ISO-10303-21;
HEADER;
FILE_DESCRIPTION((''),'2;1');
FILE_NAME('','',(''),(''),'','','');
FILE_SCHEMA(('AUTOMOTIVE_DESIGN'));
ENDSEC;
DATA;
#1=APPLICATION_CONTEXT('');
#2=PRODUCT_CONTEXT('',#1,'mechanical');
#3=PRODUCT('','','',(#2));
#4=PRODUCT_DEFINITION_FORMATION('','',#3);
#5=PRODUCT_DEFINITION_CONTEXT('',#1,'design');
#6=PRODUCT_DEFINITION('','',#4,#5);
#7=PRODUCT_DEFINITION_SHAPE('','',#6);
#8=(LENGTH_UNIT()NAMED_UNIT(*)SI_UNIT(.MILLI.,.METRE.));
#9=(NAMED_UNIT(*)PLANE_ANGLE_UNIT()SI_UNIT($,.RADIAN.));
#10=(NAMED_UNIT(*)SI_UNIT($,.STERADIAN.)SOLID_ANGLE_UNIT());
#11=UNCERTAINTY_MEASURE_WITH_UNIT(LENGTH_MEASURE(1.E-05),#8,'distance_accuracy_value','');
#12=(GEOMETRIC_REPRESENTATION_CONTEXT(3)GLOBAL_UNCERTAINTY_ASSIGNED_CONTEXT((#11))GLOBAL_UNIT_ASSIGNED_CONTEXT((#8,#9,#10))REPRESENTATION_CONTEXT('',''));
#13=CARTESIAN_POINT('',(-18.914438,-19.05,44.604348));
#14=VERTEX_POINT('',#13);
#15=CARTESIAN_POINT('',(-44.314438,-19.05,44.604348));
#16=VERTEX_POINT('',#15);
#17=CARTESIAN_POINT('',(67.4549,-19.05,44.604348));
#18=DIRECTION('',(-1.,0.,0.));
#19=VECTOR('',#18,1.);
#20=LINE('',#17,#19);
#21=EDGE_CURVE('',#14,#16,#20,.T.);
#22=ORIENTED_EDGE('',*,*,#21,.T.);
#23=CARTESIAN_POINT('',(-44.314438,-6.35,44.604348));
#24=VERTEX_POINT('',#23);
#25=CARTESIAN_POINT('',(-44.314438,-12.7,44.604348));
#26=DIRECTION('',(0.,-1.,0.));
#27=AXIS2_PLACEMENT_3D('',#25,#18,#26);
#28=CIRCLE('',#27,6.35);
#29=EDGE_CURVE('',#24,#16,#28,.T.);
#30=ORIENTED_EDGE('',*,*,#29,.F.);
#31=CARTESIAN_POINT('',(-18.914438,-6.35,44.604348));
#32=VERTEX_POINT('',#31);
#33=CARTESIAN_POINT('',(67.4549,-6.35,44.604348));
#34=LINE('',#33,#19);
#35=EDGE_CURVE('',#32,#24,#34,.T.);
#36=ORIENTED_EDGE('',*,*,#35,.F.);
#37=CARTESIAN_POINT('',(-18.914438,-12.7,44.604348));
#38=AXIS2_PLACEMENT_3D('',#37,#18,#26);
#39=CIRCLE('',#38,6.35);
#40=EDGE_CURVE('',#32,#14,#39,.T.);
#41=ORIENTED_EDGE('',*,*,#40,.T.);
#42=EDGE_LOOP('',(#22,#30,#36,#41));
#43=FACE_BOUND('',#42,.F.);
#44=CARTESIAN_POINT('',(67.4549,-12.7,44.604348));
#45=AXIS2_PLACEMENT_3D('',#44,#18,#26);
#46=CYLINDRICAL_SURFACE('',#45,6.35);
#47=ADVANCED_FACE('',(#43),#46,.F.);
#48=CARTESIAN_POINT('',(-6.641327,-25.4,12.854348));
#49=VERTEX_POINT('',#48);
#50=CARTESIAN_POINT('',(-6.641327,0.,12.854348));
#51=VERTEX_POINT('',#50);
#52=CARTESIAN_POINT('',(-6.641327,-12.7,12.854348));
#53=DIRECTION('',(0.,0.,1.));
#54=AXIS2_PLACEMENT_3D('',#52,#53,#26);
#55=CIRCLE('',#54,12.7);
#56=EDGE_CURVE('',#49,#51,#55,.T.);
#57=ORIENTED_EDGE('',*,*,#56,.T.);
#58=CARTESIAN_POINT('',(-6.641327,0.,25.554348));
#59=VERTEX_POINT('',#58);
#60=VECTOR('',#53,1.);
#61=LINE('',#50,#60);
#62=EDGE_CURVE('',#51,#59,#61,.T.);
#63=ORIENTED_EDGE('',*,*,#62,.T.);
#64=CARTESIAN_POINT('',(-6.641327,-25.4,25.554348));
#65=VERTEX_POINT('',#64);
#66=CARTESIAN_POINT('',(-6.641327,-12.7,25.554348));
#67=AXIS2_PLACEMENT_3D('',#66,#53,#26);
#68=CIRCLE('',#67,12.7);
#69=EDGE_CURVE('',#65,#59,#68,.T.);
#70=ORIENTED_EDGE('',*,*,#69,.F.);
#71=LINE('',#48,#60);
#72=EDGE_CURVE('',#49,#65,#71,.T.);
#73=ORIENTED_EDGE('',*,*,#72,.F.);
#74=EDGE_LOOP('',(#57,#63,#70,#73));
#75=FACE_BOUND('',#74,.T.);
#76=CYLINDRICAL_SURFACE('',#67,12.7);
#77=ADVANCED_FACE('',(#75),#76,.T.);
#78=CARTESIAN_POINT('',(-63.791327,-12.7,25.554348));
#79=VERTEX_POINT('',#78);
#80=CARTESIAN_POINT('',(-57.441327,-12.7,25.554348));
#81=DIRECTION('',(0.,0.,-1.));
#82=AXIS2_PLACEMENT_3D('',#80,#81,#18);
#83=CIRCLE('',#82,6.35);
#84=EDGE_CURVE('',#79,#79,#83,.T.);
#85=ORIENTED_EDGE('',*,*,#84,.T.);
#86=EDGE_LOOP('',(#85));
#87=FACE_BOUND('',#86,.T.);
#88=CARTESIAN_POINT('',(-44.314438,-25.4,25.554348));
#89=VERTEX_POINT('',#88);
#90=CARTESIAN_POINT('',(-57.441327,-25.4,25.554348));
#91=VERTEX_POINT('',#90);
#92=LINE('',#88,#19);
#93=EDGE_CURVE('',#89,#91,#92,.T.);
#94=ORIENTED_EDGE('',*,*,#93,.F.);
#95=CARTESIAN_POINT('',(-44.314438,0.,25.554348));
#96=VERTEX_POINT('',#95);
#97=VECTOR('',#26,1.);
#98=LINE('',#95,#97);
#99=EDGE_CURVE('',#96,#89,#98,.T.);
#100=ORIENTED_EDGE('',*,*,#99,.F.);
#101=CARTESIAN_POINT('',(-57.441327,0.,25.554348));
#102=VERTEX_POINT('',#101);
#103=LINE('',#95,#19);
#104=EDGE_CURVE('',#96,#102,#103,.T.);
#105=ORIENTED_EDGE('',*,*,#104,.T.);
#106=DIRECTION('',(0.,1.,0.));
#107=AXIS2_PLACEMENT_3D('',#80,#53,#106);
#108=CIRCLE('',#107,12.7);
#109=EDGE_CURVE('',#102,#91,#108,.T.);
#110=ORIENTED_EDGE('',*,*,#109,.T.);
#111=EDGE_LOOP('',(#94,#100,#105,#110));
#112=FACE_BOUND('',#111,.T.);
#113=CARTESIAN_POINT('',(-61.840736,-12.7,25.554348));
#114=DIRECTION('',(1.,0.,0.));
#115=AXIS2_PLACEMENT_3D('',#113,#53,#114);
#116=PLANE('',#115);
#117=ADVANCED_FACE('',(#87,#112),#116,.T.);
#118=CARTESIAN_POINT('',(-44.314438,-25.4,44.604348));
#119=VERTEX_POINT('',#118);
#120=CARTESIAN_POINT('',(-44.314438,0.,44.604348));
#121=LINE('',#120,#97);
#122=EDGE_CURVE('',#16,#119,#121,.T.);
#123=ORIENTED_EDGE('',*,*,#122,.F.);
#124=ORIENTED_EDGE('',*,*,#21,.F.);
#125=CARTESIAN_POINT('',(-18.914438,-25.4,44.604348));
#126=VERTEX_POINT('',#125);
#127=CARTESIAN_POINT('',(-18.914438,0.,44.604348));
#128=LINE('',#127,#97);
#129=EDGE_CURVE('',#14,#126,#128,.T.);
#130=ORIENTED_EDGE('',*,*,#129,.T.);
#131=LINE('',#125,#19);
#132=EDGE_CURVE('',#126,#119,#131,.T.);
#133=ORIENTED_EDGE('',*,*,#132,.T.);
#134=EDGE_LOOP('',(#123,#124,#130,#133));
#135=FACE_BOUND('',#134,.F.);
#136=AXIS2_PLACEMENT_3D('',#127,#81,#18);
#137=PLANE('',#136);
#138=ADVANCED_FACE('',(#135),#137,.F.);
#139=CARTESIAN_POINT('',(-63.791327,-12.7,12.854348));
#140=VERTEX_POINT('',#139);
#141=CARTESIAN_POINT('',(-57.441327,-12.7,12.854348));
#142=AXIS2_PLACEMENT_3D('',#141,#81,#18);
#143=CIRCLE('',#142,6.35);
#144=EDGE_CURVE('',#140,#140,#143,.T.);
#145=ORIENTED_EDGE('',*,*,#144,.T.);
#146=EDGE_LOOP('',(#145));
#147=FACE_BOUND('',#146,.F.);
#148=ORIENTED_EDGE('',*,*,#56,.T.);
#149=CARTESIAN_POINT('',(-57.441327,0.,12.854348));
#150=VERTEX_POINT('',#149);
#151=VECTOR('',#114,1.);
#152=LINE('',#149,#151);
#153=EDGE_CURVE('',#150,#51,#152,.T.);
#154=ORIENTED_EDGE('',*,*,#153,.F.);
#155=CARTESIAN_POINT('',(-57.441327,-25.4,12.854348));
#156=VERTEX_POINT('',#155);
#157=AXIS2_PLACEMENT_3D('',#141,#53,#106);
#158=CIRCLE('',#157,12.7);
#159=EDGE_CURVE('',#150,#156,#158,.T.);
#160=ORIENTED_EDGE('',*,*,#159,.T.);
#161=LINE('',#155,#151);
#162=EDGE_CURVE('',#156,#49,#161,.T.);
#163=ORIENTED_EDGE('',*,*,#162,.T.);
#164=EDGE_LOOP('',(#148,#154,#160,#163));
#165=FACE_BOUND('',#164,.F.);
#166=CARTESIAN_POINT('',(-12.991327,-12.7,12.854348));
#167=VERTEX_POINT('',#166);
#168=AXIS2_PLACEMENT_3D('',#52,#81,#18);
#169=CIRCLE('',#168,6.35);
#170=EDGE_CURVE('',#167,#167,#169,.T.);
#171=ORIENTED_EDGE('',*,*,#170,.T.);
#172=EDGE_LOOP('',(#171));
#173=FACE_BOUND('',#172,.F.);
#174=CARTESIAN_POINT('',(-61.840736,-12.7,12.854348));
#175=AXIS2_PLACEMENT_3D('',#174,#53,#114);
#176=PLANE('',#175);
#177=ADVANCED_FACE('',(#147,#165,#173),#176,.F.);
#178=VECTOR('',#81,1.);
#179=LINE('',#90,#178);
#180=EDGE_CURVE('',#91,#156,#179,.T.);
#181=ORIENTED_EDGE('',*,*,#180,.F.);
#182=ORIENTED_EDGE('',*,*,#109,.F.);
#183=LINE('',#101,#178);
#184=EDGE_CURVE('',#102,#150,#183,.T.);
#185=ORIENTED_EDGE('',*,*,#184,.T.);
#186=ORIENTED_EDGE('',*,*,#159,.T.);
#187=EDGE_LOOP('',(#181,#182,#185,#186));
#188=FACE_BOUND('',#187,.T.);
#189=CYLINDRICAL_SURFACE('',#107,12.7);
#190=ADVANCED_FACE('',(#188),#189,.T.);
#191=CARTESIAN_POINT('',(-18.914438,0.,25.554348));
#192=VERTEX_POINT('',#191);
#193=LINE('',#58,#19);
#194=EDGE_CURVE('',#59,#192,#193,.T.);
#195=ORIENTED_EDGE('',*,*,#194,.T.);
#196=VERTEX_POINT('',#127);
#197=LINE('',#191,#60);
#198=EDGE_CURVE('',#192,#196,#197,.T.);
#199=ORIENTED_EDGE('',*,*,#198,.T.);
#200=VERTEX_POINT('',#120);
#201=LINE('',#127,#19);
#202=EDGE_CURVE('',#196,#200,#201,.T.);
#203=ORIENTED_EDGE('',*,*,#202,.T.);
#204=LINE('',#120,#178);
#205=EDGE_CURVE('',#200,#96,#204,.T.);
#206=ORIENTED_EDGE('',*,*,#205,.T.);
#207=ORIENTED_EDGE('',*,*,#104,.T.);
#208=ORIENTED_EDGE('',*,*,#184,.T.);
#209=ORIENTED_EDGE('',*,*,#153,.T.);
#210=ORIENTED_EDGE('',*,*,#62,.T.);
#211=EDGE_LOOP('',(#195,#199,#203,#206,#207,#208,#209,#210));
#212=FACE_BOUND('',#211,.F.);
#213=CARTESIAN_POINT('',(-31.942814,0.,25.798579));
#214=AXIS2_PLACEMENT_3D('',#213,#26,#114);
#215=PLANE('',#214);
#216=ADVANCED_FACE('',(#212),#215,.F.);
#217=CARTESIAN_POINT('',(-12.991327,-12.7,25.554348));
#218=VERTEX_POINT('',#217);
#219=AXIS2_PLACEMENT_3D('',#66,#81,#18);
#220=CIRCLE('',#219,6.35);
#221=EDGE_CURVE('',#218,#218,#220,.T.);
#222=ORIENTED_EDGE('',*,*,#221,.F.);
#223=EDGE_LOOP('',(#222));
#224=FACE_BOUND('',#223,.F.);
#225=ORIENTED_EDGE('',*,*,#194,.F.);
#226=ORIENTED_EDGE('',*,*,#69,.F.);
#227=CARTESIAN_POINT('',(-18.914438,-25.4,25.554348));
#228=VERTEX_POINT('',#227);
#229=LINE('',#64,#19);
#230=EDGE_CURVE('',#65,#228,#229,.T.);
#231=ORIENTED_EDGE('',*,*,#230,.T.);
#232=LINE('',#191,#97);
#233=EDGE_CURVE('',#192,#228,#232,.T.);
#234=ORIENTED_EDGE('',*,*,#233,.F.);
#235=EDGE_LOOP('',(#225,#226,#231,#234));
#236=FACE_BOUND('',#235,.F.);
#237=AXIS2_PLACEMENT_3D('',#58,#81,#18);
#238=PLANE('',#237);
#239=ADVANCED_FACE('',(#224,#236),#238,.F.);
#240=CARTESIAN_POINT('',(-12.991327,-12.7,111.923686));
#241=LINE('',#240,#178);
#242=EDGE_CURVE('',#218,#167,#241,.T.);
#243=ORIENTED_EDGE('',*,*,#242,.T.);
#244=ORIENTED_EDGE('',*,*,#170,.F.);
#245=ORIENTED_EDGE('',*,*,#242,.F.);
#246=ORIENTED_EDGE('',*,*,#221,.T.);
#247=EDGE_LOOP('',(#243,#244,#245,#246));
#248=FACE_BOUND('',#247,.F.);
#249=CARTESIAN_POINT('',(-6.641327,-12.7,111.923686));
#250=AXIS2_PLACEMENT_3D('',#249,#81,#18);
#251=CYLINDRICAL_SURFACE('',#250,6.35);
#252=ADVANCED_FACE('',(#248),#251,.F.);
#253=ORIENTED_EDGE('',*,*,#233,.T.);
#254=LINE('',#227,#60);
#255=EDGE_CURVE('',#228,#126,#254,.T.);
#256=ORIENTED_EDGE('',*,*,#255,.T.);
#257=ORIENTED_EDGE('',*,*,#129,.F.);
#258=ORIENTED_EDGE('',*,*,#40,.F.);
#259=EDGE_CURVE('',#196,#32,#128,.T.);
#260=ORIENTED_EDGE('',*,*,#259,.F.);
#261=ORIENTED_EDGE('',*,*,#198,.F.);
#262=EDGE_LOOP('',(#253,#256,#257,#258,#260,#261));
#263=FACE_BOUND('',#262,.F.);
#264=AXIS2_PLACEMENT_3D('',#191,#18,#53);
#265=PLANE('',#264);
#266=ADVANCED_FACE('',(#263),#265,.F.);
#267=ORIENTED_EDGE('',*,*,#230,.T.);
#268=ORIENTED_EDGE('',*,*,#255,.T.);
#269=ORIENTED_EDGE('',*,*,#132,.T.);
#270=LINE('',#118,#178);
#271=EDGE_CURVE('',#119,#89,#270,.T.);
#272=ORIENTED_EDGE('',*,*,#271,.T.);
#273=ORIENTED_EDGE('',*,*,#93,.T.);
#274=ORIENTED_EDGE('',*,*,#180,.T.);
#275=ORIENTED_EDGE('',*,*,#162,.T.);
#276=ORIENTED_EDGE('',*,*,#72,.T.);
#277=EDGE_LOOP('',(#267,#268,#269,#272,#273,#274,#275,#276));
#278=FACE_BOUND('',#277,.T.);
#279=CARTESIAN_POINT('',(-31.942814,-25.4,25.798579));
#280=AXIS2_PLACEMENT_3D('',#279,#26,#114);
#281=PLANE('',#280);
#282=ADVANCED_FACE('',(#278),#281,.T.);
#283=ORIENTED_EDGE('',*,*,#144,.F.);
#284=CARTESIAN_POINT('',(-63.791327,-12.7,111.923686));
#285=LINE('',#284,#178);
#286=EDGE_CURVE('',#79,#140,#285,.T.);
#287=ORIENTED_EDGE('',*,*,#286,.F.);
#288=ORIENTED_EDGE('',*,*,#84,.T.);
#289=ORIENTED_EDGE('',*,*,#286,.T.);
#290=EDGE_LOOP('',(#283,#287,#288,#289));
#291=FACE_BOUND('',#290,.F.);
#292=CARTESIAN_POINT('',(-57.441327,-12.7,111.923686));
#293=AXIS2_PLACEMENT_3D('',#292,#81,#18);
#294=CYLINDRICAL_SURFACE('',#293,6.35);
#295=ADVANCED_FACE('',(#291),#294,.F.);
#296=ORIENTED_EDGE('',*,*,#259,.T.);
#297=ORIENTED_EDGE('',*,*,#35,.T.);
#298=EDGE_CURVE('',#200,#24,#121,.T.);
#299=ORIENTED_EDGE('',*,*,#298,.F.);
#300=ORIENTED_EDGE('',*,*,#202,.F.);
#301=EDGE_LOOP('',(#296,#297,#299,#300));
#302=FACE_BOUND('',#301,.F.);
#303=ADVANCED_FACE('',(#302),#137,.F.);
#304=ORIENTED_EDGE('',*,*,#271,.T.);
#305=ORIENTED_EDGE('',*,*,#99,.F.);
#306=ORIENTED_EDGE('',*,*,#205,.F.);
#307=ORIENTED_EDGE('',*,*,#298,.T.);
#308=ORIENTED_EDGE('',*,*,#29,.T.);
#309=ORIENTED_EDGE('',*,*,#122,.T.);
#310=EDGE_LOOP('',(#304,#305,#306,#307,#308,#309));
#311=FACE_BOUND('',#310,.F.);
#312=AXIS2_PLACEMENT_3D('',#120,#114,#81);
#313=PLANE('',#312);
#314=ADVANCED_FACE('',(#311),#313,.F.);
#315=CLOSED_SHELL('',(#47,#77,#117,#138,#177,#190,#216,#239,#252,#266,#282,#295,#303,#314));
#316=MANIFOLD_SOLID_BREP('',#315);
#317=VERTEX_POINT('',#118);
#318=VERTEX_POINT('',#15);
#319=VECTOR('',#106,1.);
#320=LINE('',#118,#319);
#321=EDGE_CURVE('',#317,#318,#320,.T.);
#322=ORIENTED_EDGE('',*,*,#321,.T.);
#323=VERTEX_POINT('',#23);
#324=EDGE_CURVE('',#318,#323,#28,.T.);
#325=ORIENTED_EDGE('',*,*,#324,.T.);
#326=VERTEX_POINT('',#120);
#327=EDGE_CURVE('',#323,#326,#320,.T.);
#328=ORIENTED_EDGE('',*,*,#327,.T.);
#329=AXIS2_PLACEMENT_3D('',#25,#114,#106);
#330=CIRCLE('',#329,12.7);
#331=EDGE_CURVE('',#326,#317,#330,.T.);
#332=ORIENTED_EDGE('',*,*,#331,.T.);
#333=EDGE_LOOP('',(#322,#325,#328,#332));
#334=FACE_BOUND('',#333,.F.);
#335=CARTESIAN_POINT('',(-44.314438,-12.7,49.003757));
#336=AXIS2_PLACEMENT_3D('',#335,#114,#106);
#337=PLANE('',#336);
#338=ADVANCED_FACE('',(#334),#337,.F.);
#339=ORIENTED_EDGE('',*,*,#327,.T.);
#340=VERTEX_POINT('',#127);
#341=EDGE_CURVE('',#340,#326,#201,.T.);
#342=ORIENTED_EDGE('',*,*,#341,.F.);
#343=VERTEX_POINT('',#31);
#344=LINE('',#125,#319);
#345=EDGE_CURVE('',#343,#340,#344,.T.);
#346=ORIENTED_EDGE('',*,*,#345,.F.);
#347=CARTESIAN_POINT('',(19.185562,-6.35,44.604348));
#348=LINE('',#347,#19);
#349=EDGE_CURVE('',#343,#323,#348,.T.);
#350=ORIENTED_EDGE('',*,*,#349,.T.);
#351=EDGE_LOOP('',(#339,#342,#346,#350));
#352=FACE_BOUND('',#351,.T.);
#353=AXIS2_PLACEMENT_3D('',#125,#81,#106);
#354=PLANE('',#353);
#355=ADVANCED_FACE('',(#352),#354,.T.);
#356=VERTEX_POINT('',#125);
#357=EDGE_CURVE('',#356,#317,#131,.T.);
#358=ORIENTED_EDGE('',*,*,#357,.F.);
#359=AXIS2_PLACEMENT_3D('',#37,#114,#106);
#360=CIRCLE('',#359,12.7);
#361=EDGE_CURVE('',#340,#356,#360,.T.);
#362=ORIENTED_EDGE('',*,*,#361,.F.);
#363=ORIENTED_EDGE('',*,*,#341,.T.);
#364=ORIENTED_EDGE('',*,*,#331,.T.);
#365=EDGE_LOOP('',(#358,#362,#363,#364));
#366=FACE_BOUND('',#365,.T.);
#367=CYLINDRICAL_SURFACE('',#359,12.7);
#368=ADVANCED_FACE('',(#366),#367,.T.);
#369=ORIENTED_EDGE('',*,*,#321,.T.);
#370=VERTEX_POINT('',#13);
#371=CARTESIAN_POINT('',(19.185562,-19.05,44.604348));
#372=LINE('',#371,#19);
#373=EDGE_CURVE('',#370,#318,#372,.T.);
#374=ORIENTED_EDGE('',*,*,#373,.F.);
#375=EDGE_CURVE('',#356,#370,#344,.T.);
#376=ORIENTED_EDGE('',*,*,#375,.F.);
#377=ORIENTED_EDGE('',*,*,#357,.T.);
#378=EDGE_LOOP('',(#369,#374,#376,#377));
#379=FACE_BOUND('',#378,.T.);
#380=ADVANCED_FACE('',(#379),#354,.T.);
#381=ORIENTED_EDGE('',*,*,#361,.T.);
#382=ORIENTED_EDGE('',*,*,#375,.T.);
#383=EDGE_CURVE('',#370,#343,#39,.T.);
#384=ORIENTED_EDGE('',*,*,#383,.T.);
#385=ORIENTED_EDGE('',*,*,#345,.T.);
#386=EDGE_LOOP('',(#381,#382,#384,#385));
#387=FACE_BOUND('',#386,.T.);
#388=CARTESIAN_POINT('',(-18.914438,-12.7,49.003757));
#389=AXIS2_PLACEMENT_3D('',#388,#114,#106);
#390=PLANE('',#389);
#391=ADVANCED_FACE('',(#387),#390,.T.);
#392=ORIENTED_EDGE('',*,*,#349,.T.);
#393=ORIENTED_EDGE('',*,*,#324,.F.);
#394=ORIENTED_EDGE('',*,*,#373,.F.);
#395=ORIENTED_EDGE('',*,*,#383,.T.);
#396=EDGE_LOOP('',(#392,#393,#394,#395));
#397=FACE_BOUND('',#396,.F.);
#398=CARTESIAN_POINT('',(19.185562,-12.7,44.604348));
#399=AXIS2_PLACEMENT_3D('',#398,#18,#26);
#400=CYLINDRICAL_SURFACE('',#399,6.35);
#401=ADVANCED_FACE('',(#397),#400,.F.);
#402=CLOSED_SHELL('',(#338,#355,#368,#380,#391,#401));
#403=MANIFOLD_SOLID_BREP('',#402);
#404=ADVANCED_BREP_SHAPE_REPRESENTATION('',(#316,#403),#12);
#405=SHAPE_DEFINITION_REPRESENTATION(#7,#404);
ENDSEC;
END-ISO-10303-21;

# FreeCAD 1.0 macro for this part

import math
import FreeCAD as App
import Part
import Sketcher
from FreeCAD import Vector
Q = App.Units.Quantity


def add_polygon(sketch, points):
    """Adds a closed chain of lines whose ends are joined by coincident constraints."""
    first, n = sketch.GeometryCount, len(points)
    for a, b in zip(points, points[1:] + points[:1]):
        sketch.addGeometry(Part.LineSegment(App.Vector(*a, 0), App.Vector(*b, 0)), False)
    for i in range(n):
        sketch.addConstraint(Sketcher.Constraint("Coincident", first + i, 2, first + (i + 1) % n, 1))

doc = App.newDocument("Part")
body = doc.addObject("PartDesign::Body", "Body")

# Sketch on XZ plane
sketch1 = body.newObject("Sketcher::SketchObject", "Sketch")
sketch1.AttachmentSupport = (doc.getObject("XZ_Plane"), [""])
sketch1.MapMode = "FlatFace"
add_polygon(sketch1, [(-19, 45), (-44, 45), (-44, 26), (-57, 26), (-57, 13), (-7, 13), (-7, 26), (-19, 26)])  # lines 0-7
sketch1.addConstraint([
    Sketcher.Constraint("Horizontal", 0),
    Sketcher.Constraint("Vertical", 1),
    Sketcher.Constraint("Horizontal", 2),
    Sketcher.Constraint("Vertical", 3),
    Sketcher.Constraint("Horizontal", 4),
    Sketcher.Constraint("Vertical", 5),
    Sketcher.Constraint("Horizontal", 6),
    Sketcher.Constraint("Vertical", 7),
    Sketcher.Constraint("Horizontal", 2, 2, 5, 2),
    Sketcher.Constraint("DistanceX", 0, 2, 0, 1, Q("1 in")),
    Sketcher.Constraint("DistanceX", 4, 1, 4, 2, Q("2 in")),
    Sketcher.Constraint("DistanceY", 3, 2, 3, 1, Q("0.5 in")),
    Sketcher.Constraint("DistanceY", 1, 2, 1, 1, Q("0.75 in")),
    Sketcher.Constraint("DistanceX", 2, 2, 2, 1, 13.126889),
    Sketcher.Constraint("DistanceX", 0, 2, -1, 1, 44.314438),
    Sketcher.Constraint("DistanceY", -1, 1, 0, 2, 44.604348),
])
pad1 = body.newObject("PartDesign::Pad", "Pad")
pad1.Profile = sketch1
pad1.Length = Q("1 in")

# Sketch on XY plane
sketch2 = body.newObject("Sketcher::SketchObject", "Sketch001")
sketch2.AttachmentSupport = (doc.getObject("XY_Plane"), [""])
sketch2.MapMode = "FlatFace"
sketch2.AttachmentOffset = App.Placement(Vector(0, 0, 25.554348), App.Rotation())
sketch2.addGeometry([
    Part.LineSegment(Vector(-57, -25, 0), Vector(-57, 0, 0)),
    Part.ArcOfCircle(Part.Circle(Vector(-57, -13, 0), Vector(0, 0, 1), 13), math.radians(90), math.radians(270)),
    Part.LineSegment(Vector(-7, 0, 0), Vector(-7, -25, 0)),
    Part.ArcOfCircle(Part.Circle(Vector(-7, -13, 0), Vector(0, 0, 1), 13), math.radians(-90), math.radians(90)),
], False)
sketch2.addConstraint([
    Sketcher.Constraint("Coincident", 0, 1, 1, 2),
    Sketcher.Constraint("Coincident", 1, 1, 0, 2),
    Sketcher.Constraint("Coincident", 2, 1, 3, 2),
    Sketcher.Constraint("Coincident", 3, 1, 2, 2),
    Sketcher.Constraint("Vertical", 0),
    Sketcher.Constraint("Vertical", 2),
    Sketcher.Constraint("Equal", 1, 3),
    Sketcher.Constraint("PointOnObject", 1, 1, -1),
    Sketcher.Constraint("PointOnObject", 2, 1, -1),
    Sketcher.Constraint("Vertical", 1, 3, 0, 1),
    Sketcher.Constraint("Vertical", 3, 3, 2, 1),
    Sketcher.Constraint("Radius", 1, Q("0.5 in")),
    Sketcher.Constraint("DistanceX", 1, 3, 3, 3, Q("2 in")),
    Sketcher.Constraint("DistanceX", 1, 3, -1, 1, 57.441327),
])
pad2 = body.newObject("PartDesign::Pad", "Pad001")
pad2.Profile = sketch2
pad2.Length = Q("0.5 in")
pad2.Reversed = True

# Sketch on XY plane
sketch3 = body.newObject("Sketcher::SketchObject", "Sketch002")
sketch3.AttachmentSupport = (doc.getObject("XY_Plane"), [""])
sketch3.MapMode = "FlatFace"
sketch3.AttachmentOffset = App.Placement(Vector(0, 0, 25.554348), App.Rotation())
sketch3.addGeometry(Part.Circle(Vector(-57, -13, 0), Vector(0, 0, 1), 6), False)
sketch3.addConstraint([
    Sketcher.Constraint("Diameter", 0, Q("0.5 in")),
    Sketcher.Constraint("DistanceY", 0, 3, -1, 1, Q("0.5 in")),
    Sketcher.Constraint("DistanceX", 0, 3, -1, 1, 57.441327),
])
doc.recompute()
hole = body.newObject("PartDesign::Hole", "Hole")
hole.Profile = sketch3
hole.ThreadType = "None"
hole.Diameter = Q("0.5 in")
hole.DepthType = "ThroughAll"

# Sketch on XY plane
sketch4 = body.newObject("Sketcher::SketchObject", "Sketch003")
sketch4.AttachmentSupport = (doc.getObject("XY_Plane"), [""])
sketch4.MapMode = "FlatFace"
sketch4.AttachmentOffset = App.Placement(Vector(0, 0, 25.554348), App.Rotation())
sketch4.addGeometry(Part.Circle(Vector(-7, -13, 0), Vector(0, 0, 1), 6), False)
sketch4.addConstraint([
    Sketcher.Constraint("Diameter", 0, Q("0.5 in")),
    Sketcher.Constraint("DistanceY", 0, 3, -1, 1, Q("0.5 in")),
    Sketcher.Constraint("DistanceX", 0, 3, -1, 1, 6.641327),
])
doc.recompute()
hole2 = body.newObject("PartDesign::Hole", "Hole001")
hole2.Profile = sketch4
hole2.ThreadType = "None"
hole2.Diameter = Q("0.5 in")
hole2.DepthType = "ThroughAll"

# Sketch on YZ plane
sketch5 = body.newObject("Sketcher::SketchObject", "Sketch004")
sketch5.AttachmentSupport = (doc.getObject("YZ_Plane"), [""])
sketch5.MapMode = "FlatFace"
sketch5.AttachmentOffset = App.Placement(Vector(0, 0, -18.914438), App.Rotation())
sketch5.addGeometry(Part.Circle(Vector(-13, 45, 0), Vector(0, 0, 1), 6), False)
sketch5.addConstraint([
    Sketcher.Constraint("Diameter", 0, Q("0.5 in")),
    Sketcher.Constraint("DistanceX", 0, 3, -1, 1, Q("0.5 in")),
    Sketcher.Constraint("DistanceY", -1, 1, 0, 3, 44.604348),
])
doc.recompute()
hole3 = body.newObject("PartDesign::Hole", "Hole002")
hole3.Profile = sketch5
hole3.ThreadType = "None"
hole3.Diameter = Q("0.5 in")
hole3.DepthType = "ThroughAll"
body2 = doc.addObject("PartDesign::Body", "Body001")

# Sketch on YZ plane
sketch6 = body2.newObject("Sketcher::SketchObject", "Sketch005")
sketch6.AttachmentSupport = (doc.getObject("YZ_Plane001"), [""])
sketch6.MapMode = "FlatFace"
sketch6.AttachmentOffset = App.Placement(Vector(0, 0, -18.914438), App.Rotation())
sketch6.addGeometry([
    Part.LineSegment(Vector(-25, 45, 0), Vector(0, 45, 0)),
    Part.ArcOfCircle(Part.Circle(Vector(-13, 45, 0), Vector(0, 0, 1), 13), math.radians(0), math.radians(180)),
], False)
sketch6.addConstraint([
    Sketcher.Constraint("Coincident", 0, 1, 1, 2),
    Sketcher.Constraint("Coincident", 1, 1, 0, 2),
    Sketcher.Constraint("Horizontal", 0),
    Sketcher.Constraint("PointOnObject", 1, 1, -2),
    Sketcher.Constraint("Horizontal", 1, 3, 0, 1),
    Sketcher.Constraint("Radius", 1, Q("0.5 in")),
    Sketcher.Constraint("DistanceY", -1, 1, 1, 3, 44.604348),
])
pad3 = body2.newObject("PartDesign::Pad", "Pad002")
pad3.Profile = sketch6
pad3.Length = Q("1 in")
pad3.Reversed = True

# Sketch on YZ plane
sketch7 = body2.newObject("Sketcher::SketchObject", "Sketch006")
sketch7.AttachmentSupport = (doc.getObject("YZ_Plane001"), [""])
sketch7.MapMode = "FlatFace"
sketch7.AttachmentOffset = App.Placement(Vector(0, 0, -18.914438), App.Rotation())
sketch7.addGeometry(Part.Circle(Vector(-13, 45, 0), Vector(0, 0, 1), 6), False)
sketch7.addConstraint([
    Sketcher.Constraint("Diameter", 0, Q("0.5 in")),
    Sketcher.Constraint("DistanceX", 0, 3, -1, 1, Q("0.5 in")),
    Sketcher.Constraint("DistanceY", -1, 1, 0, 3, 44.604348),
])
doc.recompute()
hole4 = body2.newObject("PartDesign::Hole", "Hole003")
hole4.Profile = sketch7
hole4.ThreadType = "None"
hole4.Diameter = Q("0.5 in")
hole4.DepthType = "ThroughAll"

doc.recompute()
